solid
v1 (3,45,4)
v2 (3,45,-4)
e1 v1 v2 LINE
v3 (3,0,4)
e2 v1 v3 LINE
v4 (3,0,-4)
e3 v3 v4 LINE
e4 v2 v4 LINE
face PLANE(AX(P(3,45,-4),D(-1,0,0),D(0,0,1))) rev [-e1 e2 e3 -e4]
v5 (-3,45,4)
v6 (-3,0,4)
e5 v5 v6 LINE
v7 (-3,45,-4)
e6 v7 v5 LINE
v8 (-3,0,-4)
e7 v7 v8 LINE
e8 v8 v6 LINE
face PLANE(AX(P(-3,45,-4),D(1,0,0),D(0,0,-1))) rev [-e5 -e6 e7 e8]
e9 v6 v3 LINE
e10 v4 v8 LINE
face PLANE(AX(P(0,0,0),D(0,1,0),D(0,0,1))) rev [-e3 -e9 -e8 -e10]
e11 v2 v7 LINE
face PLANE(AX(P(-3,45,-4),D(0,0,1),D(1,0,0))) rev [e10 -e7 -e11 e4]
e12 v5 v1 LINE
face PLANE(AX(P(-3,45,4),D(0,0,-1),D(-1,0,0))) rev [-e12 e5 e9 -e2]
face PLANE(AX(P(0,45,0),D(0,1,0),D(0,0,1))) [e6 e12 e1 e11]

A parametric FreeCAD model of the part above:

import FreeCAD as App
import Part
import Sketcher

V = App.Vector
Q = App.Units.Quantity


def add_polygon(sketch, points):
    """Adds a closed chain of lines whose ends are joined by coincident constraints."""
    first, n = sketch.GeometryCount, len(points)
    for a, b in zip(points, points[1:] + points[:1]):
        sketch.addGeometry(Part.LineSegment(App.Vector(*a, 0), App.Vector(*b, 0)), False)
    for i in range(n):
        sketch.addConstraint(Sketcher.Constraint("Coincident", first + i, 2, first + (i + 1) % n, 1))

doc = App.newDocument("Part")
body = doc.addObject("PartDesign::Body", "Body")

sketch1 = body.newObject("Sketcher::SketchObject", "Sketch")
sketch1.AttachmentSupport = (doc.getObject("XZ_Plane"), [""])
sketch1.MapMode = "FlatFace"
add_polygon(sketch1, [(-3, -4), (-3, 4), (3, 4), (3, -4)])
sketch1.addConstraint([
    Sketcher.Constraint("Vertical", 0),
    Sketcher.Constraint("Horizontal", 1),
    Sketcher.Constraint("Vertical", 2),
    Sketcher.Constraint("Horizontal", 3),
    Sketcher.Constraint("Symmetric", 0, 2, 2, 2, -1, 1),
    Sketcher.Constraint("DistanceX", 1, 1, 1, 2, Q("6 mm")),
    Sketcher.Constraint("DistanceY", 0, 1, 0, 2, Q("8 mm")),
])
pad1 = body.newObject("PartDesign::Pad", "Pad")
pad1.Profile = sketch1
pad1.Length = 45
pad1.Reversed = True

doc.recompute()
